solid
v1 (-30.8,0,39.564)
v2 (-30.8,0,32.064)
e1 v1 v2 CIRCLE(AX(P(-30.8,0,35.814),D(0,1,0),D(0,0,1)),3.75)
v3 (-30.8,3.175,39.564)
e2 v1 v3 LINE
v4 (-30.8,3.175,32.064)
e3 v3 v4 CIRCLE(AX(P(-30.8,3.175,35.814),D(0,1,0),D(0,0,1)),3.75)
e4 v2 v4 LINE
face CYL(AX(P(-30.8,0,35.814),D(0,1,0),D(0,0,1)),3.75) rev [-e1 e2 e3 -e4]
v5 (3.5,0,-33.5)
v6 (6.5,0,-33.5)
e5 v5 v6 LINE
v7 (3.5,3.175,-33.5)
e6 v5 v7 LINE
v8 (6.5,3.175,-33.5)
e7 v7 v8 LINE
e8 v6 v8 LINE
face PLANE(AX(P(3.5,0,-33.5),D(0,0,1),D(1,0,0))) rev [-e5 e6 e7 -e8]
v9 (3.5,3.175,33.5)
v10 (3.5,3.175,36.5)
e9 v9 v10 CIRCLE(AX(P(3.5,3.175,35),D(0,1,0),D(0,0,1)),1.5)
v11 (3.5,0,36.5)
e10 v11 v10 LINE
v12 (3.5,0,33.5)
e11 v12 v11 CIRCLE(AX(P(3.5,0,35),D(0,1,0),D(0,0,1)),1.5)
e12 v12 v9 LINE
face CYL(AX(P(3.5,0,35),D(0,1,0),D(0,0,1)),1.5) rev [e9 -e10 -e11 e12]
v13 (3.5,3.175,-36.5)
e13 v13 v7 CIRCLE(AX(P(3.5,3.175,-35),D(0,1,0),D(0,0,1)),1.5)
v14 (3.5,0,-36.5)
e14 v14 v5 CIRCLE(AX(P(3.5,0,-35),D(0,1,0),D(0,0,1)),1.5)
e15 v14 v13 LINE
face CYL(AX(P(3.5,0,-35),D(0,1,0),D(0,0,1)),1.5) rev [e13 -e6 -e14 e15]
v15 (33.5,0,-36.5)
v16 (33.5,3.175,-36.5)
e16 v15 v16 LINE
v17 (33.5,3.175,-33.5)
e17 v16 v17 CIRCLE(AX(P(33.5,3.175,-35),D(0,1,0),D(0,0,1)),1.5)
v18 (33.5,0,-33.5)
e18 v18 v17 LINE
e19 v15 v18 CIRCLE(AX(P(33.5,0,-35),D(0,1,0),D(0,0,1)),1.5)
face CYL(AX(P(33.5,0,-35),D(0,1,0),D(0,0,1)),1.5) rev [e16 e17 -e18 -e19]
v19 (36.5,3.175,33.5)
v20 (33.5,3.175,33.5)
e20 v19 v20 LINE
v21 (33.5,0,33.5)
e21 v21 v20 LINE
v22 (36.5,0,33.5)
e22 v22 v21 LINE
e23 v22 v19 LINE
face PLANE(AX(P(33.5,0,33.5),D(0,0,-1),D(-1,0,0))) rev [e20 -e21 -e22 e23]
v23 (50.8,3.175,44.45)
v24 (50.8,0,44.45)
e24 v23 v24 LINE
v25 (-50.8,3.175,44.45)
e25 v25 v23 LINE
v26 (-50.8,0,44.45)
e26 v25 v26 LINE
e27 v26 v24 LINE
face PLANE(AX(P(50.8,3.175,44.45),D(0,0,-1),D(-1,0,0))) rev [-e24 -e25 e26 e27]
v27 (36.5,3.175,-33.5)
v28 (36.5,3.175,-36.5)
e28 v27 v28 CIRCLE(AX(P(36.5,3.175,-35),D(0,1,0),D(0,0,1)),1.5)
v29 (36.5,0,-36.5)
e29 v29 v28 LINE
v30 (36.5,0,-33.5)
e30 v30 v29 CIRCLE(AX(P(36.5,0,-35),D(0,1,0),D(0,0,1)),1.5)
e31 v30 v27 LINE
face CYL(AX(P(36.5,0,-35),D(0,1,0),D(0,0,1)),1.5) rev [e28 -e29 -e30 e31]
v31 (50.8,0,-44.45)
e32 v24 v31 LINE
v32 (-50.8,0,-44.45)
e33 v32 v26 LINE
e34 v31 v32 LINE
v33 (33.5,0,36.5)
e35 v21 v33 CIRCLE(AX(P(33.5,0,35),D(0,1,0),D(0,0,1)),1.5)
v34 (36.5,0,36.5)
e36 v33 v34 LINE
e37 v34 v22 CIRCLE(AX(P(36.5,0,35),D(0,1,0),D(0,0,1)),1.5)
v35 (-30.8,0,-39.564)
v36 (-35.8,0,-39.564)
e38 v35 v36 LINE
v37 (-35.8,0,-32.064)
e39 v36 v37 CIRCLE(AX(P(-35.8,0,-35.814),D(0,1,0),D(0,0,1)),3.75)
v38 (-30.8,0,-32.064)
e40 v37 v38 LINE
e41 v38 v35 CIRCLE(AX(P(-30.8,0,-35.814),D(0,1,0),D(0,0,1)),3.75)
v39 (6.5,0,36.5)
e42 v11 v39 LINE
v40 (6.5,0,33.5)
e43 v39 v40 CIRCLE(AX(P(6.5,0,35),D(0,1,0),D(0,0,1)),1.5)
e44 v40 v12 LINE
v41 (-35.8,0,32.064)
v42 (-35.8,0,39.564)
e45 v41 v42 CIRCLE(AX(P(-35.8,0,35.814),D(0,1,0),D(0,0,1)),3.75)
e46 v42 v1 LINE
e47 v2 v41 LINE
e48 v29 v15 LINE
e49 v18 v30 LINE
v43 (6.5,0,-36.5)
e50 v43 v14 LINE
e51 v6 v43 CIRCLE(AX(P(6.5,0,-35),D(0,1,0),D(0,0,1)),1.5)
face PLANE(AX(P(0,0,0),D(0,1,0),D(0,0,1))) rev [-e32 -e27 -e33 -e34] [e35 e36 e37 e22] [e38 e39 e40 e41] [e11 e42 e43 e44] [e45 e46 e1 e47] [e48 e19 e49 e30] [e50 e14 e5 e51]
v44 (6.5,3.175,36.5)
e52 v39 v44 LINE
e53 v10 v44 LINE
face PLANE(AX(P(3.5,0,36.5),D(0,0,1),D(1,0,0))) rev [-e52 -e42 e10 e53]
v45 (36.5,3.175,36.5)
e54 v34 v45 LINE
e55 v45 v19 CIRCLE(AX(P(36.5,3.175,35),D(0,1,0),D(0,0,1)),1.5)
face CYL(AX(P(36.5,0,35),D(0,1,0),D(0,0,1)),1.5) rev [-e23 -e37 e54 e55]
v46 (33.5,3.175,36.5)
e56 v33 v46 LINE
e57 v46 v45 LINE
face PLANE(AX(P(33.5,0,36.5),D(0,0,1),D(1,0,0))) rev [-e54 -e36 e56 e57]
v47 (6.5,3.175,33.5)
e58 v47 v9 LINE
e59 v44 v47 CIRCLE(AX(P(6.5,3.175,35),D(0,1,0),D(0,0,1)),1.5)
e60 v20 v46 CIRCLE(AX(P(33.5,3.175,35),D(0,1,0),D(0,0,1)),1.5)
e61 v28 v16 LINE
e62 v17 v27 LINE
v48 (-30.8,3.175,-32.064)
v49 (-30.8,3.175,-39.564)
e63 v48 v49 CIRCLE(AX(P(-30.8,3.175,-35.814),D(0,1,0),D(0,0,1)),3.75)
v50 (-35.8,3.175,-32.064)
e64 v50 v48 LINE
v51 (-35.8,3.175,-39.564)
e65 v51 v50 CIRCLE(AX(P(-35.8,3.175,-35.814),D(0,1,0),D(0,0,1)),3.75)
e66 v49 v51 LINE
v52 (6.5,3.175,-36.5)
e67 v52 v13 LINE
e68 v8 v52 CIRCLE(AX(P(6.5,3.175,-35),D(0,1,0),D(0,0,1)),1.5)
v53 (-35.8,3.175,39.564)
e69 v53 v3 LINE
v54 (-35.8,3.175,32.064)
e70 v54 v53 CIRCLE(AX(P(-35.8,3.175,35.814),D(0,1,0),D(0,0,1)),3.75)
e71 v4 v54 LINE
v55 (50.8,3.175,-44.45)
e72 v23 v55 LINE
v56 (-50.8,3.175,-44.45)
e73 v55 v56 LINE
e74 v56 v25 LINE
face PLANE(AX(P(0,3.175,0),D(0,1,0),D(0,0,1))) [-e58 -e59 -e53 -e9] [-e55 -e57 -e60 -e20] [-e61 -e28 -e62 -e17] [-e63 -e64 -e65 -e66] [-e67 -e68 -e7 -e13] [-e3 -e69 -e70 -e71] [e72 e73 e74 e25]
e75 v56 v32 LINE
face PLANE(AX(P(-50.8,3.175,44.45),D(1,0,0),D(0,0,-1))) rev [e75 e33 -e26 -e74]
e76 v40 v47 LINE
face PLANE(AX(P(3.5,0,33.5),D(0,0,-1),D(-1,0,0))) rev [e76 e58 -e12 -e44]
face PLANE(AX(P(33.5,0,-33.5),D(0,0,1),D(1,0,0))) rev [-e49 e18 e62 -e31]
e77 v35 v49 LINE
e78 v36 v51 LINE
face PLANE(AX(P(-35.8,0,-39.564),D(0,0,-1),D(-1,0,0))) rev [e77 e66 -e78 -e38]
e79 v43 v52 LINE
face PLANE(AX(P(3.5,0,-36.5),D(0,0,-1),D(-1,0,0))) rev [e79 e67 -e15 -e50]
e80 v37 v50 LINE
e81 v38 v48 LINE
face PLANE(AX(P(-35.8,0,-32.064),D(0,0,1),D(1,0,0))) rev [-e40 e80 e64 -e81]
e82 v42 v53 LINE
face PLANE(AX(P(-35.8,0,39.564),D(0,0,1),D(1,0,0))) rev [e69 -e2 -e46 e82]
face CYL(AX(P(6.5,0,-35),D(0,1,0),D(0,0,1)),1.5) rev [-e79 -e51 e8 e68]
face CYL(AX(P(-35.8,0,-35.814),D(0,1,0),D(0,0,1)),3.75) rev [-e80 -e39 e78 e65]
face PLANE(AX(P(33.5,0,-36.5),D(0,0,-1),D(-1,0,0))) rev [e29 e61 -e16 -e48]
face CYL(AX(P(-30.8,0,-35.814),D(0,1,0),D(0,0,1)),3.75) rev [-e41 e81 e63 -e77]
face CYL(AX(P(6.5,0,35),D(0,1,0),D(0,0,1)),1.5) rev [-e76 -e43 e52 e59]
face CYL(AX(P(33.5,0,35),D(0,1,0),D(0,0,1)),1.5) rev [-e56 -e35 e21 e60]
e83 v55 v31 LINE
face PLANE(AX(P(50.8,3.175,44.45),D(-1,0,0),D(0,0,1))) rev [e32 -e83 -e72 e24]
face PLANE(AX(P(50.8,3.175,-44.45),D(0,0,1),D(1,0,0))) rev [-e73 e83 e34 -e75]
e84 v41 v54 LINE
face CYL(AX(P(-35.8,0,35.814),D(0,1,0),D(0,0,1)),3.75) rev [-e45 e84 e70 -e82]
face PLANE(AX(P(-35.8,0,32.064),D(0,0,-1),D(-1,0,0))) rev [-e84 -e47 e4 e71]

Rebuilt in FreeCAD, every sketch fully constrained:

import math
import FreeCAD as App
import Part
import Sketcher
from FreeCAD import Vector

doc = App.newDocument("Part")
body = doc.addObject("PartDesign::Body", "Body")

# Sketch on XZ plane
sketch1 = body.newObject("Sketcher::SketchObject", "Sketch")
sketch1.AttachmentSupport = (doc.getObject("XZ_Plane"), [""])
sketch1.MapMode = "FlatFace"
sketch1.addGeometry([
    Part.LineSegment(Vector(-50.8, -44.45, 0), Vector(-50.8, 44.45, 0)),
    Part.LineSegment(Vector(-50.8, 44.45, 0), Vector(50.8, 44.45, 0)),
    Part.LineSegment(Vector(50.8, 44.45, 0), Vector(50.8, -44.45, 0)),
    Part.LineSegment(Vector(50.8, -44.45, 0), Vector(-50.8, -44.45, 0)),
], False)
sketch1.addConstraint([
    Sketcher.Constraint("Coincident", 0, 2, 1, 1),
    Sketcher.Constraint("Coincident", 1, 2, 2, 1),
    Sketcher.Constraint("Coincident", 2, 2, 3, 1),
    Sketcher.Constraint("Coincident", 3, 2, 0, 1),
    Sketcher.Constraint("Vertical", 0),
    Sketcher.Constraint("Horizontal", 1),
    Sketcher.Constraint("Vertical", 2),
    Sketcher.Constraint("Horizontal", 3),
    Sketcher.Constraint("Symmetric", 0, 2, 2, 2, -1, 1),
    Sketcher.Constraint("DistanceX", 1, 1, 1, 2, 101.6),
    Sketcher.Constraint("DistanceY", 0, 1, 0, 2, 88.9),
])
pad1 = body.newObject("PartDesign::Pad", "Pad")
pad1.Profile = sketch1
pad1.Length = 3.175
pad1.Reversed = True

# Sketch on XZ plane
sketch2 = body.newObject("Sketcher::SketchObject", "Sketch001")
sketch2.AttachmentSupport = (doc.getObject("XZ_Plane"), [""])
sketch2.MapMode = "FlatFace"
sketch2.AttachmentOffset = App.Placement(Vector(0, 0, -3.175), App.Rotation())
sketch2.addGeometry([
    Part.LineSegment(Vector(-30.8, -39.564, 0), Vector(-35.8, -39.564, 0)),  # 0
    Part.ArcOfCircle(Part.Circle(Vector(-35.8, -35.814, 0), Vector(0, 0, 1), 3.75), math.radians(90), math.radians(270)),  # 1
    Part.LineSegment(Vector(-35.8, -32.064, 0), Vector(-30.8, -32.064, 0)),  # 2
    Part.ArcOfCircle(Part.Circle(Vector(-30.8, -35.814, 0), Vector(0, 0, 1), 3.75), math.radians(-90), math.radians(90)),  # 3
    Part.LineSegment(Vector(-30.8, 32.064, 0), Vector(-35.8, 32.064, 0)),  # 4
    Part.ArcOfCircle(Part.Circle(Vector(-35.8, 35.814, 0), Vector(0, 0, 1), 3.75), math.radians(90), math.radians(270)),  # 5
    Part.LineSegment(Vector(-35.8, 39.564, 0), Vector(-30.8, 39.564, 0)),  # 6
    Part.ArcOfCircle(Part.Circle(Vector(-30.8, 35.814, 0), Vector(0, 0, 1), 3.75), math.radians(-90), math.radians(90)),  # 7
    Part.LineSegment(Vector(6.5, -36.5, 0), Vector(3.5, -36.5, 0)),  # 8
    Part.ArcOfCircle(Part.Circle(Vector(3.5, -35, 0), Vector(0, 0, 1), 1.5), math.radians(90), math.radians(270)),  # 9
    Part.LineSegment(Vector(3.5, -33.5, 0), Vector(6.5, -33.5, 0)),  # 10
    Part.ArcOfCircle(Part.Circle(Vector(6.5, -35, 0), Vector(0, 0, 1), 1.5), math.radians(-90), math.radians(90)),  # 11
    Part.LineSegment(Vector(36.5, -36.5, 0), Vector(33.5, -36.5, 0)),  # 12
    Part.ArcOfCircle(Part.Circle(Vector(33.5, -35, 0), Vector(0, 0, 1), 1.5), math.radians(90), math.radians(270)),  # 13
    Part.LineSegment(Vector(33.5, -33.5, 0), Vector(36.5, -33.5, 0)),  # 14
    Part.ArcOfCircle(Part.Circle(Vector(36.5, -35, 0), Vector(0, 0, 1), 1.5), math.radians(-90), math.radians(90)),  # 15
    Part.LineSegment(Vector(6.5, 33.5, 0), Vector(3.5, 33.5, 0)),  # 16
    Part.ArcOfCircle(Part.Circle(Vector(3.5, 35, 0), Vector(0, 0, 1), 1.5), math.radians(90), math.radians(270)),  # 17
    Part.LineSegment(Vector(3.5, 36.5, 0), Vector(6.5, 36.5, 0)),  # 18
    Part.ArcOfCircle(Part.Circle(Vector(6.5, 35, 0), Vector(0, 0, 1), 1.5), math.radians(-90), math.radians(90)),  # 19
    Part.LineSegment(Vector(36.5, 33.5, 0), Vector(33.5, 33.5, 0)),  # 20
    Part.ArcOfCircle(Part.Circle(Vector(33.5, 35, 0), Vector(0, 0, 1), 1.5), math.radians(90), math.radians(270)),  # 21
    Part.LineSegment(Vector(33.5, 36.5, 0), Vector(36.5, 36.5, 0)),  # 22
    Part.ArcOfCircle(Part.Circle(Vector(36.5, 35, 0), Vector(0, 0, 1), 1.5), math.radians(-90), math.radians(90)),  # 23
], False)
sketch2.addConstraint([
    Sketcher.Constraint("Tangent", 0, 2, 1, 2),
    Sketcher.Constraint("Tangent", 1, 1, 2, 1),
    Sketcher.Constraint("Tangent", 2, 2, 3, 2),
    Sketcher.Constraint("Tangent", 3, 1, 0, 1),
    Sketcher.Constraint("Tangent", 4, 2, 5, 2),
    Sketcher.Constraint("Tangent", 5, 1, 6, 1),
    Sketcher.Constraint("Tangent", 6, 2, 7, 2),
    Sketcher.Constraint("Tangent", 7, 1, 4, 1),
    Sketcher.Constraint("Tangent", 8, 2, 9, 2),
    Sketcher.Constraint("Tangent", 9, 1, 10, 1),
    Sketcher.Constraint("Tangent", 10, 2, 11, 2),
    Sketcher.Constraint("Tangent", 11, 1, 8, 1),
    Sketcher.Constraint("Tangent", 12, 2, 13, 2),
    Sketcher.Constraint("Tangent", 13, 1, 14, 1),
    Sketcher.Constraint("Tangent", 14, 2, 15, 2),
    Sketcher.Constraint("Tangent", 15, 1, 12, 1),
    Sketcher.Constraint("Tangent", 16, 2, 17, 2),
    Sketcher.Constraint("Tangent", 17, 1, 18, 1),
    Sketcher.Constraint("Tangent", 18, 2, 19, 2),
    Sketcher.Constraint("Tangent", 19, 1, 16, 1),
    Sketcher.Constraint("Tangent", 20, 2, 21, 2),
    Sketcher.Constraint("Tangent", 21, 1, 22, 1),
    Sketcher.Constraint("Tangent", 22, 2, 23, 2),
    Sketcher.Constraint("Tangent", 23, 1, 20, 1),
    Sketcher.Constraint("Horizontal", 0),
    Sketcher.Constraint("Horizontal", 2),
    Sketcher.Constraint("Horizontal", 4),
    Sketcher.Constraint("Horizontal", 6),
    Sketcher.Constraint("Horizontal", 8),
    Sketcher.Constraint("Horizontal", 10),
    Sketcher.Constraint("Horizontal", 12),
    Sketcher.Constraint("Horizontal", 14),
    Sketcher.Constraint("Horizontal", 16),
    Sketcher.Constraint("Horizontal", 18),
    Sketcher.Constraint("Horizontal", 20),
    Sketcher.Constraint("Horizontal", 22),
    Sketcher.Constraint("Equal", 3, 5),
    Sketcher.Constraint("Equal", 11, 13),
    Sketcher.Constraint("Equal", 15, 17),
    Sketcher.Constraint("Equal", 19, 21),
    Sketcher.Constraint("Symmetric", 1, 3, 5, 3, -1),
    Sketcher.Constraint("Symmetric", 9, 3, 17, 3, -1),
    Sketcher.Constraint("Symmetric", 13, 3, 21, 3, -1),
    Sketcher.Constraint("Horizontal", 11, 3, 13, 3),
    Sketcher.Constraint("Vertical", 3, 3, 7, 3),
    Sketcher.Constraint("Vertical", 11, 3, 19, 3),
    Sketcher.Constraint("Vertical", 15, 3, 23, 3),
    Sketcher.Constraint("Equal", 10, 12),
    Sketcher.Constraint("Radius", 9, 1.5),
    Sketcher.Constraint("DistanceX", 0, 2, 0, 1, 5.0),
    Sketcher.Constraint("DistanceX", 8, 2, 8, 1, 3.0),
    Sketcher.Constraint("Radius", 1, 3.75),
    Sketcher.Constraint("DistanceY", 9, 3, -1, 1, 35.0),
    Sketcher.Constraint("DistanceX", 11, 3, 13, 3, 27.0),
    Sketcher.Constraint("DistanceX", 1, 3, -1, 1, 35.8),
    Sketcher.Constraint("DistanceX", -1, 1, 9, 3, 3.5),
    Sketcher.Constraint("DistanceY", 1, 3, -1, 1, 35.814),
])
pocket1 = body.newObject("PartDesign::Pocket", "Pocket")
pocket1.Profile = sketch2
pocket1.Type = "ThroughAll"
pocket1.Reversed = True

doc.recompute()
